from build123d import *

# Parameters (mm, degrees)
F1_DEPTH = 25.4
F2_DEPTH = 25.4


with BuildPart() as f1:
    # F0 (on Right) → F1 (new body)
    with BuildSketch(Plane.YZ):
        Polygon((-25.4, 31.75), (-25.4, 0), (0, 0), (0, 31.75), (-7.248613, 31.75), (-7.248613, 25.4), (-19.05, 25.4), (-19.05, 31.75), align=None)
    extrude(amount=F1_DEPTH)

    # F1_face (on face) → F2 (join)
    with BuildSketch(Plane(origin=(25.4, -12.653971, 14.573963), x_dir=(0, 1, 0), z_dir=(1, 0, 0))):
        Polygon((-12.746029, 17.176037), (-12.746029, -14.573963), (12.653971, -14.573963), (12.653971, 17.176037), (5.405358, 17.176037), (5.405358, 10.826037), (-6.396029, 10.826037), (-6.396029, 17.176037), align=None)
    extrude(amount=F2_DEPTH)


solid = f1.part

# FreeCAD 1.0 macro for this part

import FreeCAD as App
import Part
import Sketcher
Q = App.Units.Quantity

doc = App.newDocument("Part")
body = doc.addObject("PartDesign::Body", "Body")

sketch1 = body.newObject("Sketcher::SketchObject", "Sketch")
sketch1.AttachmentSupport = (doc.getObject("YZ_Plane"), [""])
sketch1.MapMode = "FlatFace"
sketch1.addGeometry([
    Part.LineSegment(App.Vector(-25, 32, 0), App.Vector(-25, 0, 0)),
    Part.LineSegment(App.Vector(-25, 0, 0), App.Vector(0, 0, 0)),
    Part.LineSegment(App.Vector(0, 0, 0), App.Vector(0, 32, 0)),
    Part.LineSegment(App.Vector(0, 32, 0), App.Vector(-7, 32, 0)),
    Part.LineSegment(App.Vector(-7, 32, 0), App.Vector(-7, 25, 0)),
    Part.LineSegment(App.Vector(-7, 25, 0), App.Vector(-19, 25, 0)),
    Part.LineSegment(App.Vector(-19, 25, 0), App.Vector(-19, 32, 0)),
    Part.LineSegment(App.Vector(-19, 32, 0), App.Vector(-25, 32, 0)),
], False)
sketch1.addConstraint([
    Sketcher.Constraint("Coincident", 0, 2, 1, 1),
    Sketcher.Constraint("Coincident", 1, 2, 2, 1),
    Sketcher.Constraint("Coincident", 2, 2, 3, 1),
    Sketcher.Constraint("Coincident", 3, 2, 4, 1),
    Sketcher.Constraint("Coincident", 4, 2, 5, 1),
    Sketcher.Constraint("Coincident", 5, 2, 6, 1),
    Sketcher.Constraint("Coincident", 6, 2, 7, 1),
    Sketcher.Constraint("Coincident", 7, 2, 0, 1),
    Sketcher.Constraint("Vertical", 0),
    Sketcher.Constraint("Horizontal", 1),
    Sketcher.Constraint("Vertical", 2),
    Sketcher.Constraint("Horizontal", 3),
    Sketcher.Constraint("Vertical", 4),
    Sketcher.Constraint("Horizontal", 5),
    Sketcher.Constraint("Vertical", 6),
    Sketcher.Constraint("Horizontal", 7),
    Sketcher.Constraint("Coincident", 1, 2, -1, 1),
    Sketcher.Constraint("Horizontal", 3, 2, 6, 2),
    Sketcher.Constraint("Equal", 7, 4),
    Sketcher.Constraint("DistanceX", 1, 1, 1, 2, Q("1 in")),
    Sketcher.Constraint("DistanceY", -1, 1, 4, 2, Q("1 in")),
    Sketcher.Constraint("DistanceX", 7, 2, 7, 1, Q("0.25 in")),
    Sketcher.Constraint("DistanceX", 3, 2, 3, 1, Q("7.248613 mm")),
])
pad1 = body.newObject("PartDesign::Pad", "Pad")
pad1.Profile = sketch1
pad1.Length = Q("1 in")

sketch2 = body.newObject("Sketcher::SketchObject", "Sketch001")
sketch2.AttachmentSupport = (doc.getObject("YZ_Plane"), [""])
sketch2.MapMode = "FlatFace"
sketch2.AttachmentOffset = App.Placement(App.Vector(0, 0, 1 * 25.4), App.Rotation())
sketch2.addGeometry([
    Part.LineSegment(App.Vector(-25, 32, 0), App.Vector(-25, 0, 0)),
    Part.LineSegment(App.Vector(-25, 0, 0), App.Vector(0, 0, 0)),
    Part.LineSegment(App.Vector(0, 0, 0), App.Vector(0, 32, 0)),
    Part.LineSegment(App.Vector(0, 32, 0), App.Vector(-7, 32, 0)),
    Part.LineSegment(App.Vector(-7, 32, 0), App.Vector(-7, 25, 0)),
    Part.LineSegment(App.Vector(-7, 25, 0), App.Vector(-19, 25, 0)),
    Part.LineSegment(App.Vector(-19, 25, 0), App.Vector(-19, 32, 0)),
    Part.LineSegment(App.Vector(-19, 32, 0), App.Vector(-25, 32, 0)),
], False)
sketch2.addConstraint([
    Sketcher.Constraint("Coincident", 0, 2, 1, 1),
    Sketcher.Constraint("Coincident", 1, 2, 2, 1),
    Sketcher.Constraint("Coincident", 2, 2, 3, 1),
    Sketcher.Constraint("Coincident", 3, 2, 4, 1),
    Sketcher.Constraint("Coincident", 4, 2, 5, 1),
    Sketcher.Constraint("Coincident", 5, 2, 6, 1),
    Sketcher.Constraint("Coincident", 6, 2, 7, 1),
    Sketcher.Constraint("Coincident", 7, 2, 0, 1),
    Sketcher.Constraint("Vertical", 0),
    Sketcher.Constraint("Horizontal", 1),
    Sketcher.Constraint("Vertical", 2),
    Sketcher.Constraint("Horizontal", 3),
    Sketcher.Constraint("Vertical", 4),
    Sketcher.Constraint("Horizontal", 5),
    Sketcher.Constraint("Vertical", 6),
    Sketcher.Constraint("Horizontal", 7),
    Sketcher.Constraint("Coincident", 1, 2, -1, 1),
    Sketcher.Constraint("Horizontal", 3, 2, 6, 2),
    Sketcher.Constraint("Equal", 7, 4),
    Sketcher.Constraint("DistanceX", 1, 1, 1, 2, Q("1 in")),
    Sketcher.Constraint("DistanceY", -1, 1, 4, 2, Q("1 in")),
    Sketcher.Constraint("DistanceX", 7, 2, 7, 1, Q("0.25 in")),
    Sketcher.Constraint("DistanceX", 3, 2, 3, 1, Q("7.248613 mm")),
])
pad2 = body.newObject("PartDesign::Pad", "Pad001")
pad2.Profile = sketch2
pad2.Length = Q("1 in")

doc.recompute()
